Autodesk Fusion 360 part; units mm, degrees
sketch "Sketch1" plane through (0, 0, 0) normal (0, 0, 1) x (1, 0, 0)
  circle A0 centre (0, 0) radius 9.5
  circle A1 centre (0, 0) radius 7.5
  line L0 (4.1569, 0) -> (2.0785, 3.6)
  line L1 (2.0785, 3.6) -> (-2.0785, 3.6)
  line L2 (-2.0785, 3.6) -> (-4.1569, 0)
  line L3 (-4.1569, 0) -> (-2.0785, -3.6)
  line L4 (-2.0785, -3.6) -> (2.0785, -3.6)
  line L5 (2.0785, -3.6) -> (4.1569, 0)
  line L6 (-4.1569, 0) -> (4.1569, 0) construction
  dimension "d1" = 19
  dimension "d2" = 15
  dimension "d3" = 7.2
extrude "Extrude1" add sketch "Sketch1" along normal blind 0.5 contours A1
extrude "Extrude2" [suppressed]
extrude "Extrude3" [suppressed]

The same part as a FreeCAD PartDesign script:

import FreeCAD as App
import Part
import Sketcher

V = App.Vector
Q = App.Units.Quantity


def add_polygon(sketch, points):
    """Adds a closed chain of lines whose ends are joined by coincident constraints."""
    first, n = sketch.GeometryCount, len(points)
    for a, b in zip(points, points[1:] + points[:1]):
        sketch.addGeometry(Part.LineSegment(App.Vector(*a, 0), App.Vector(*b, 0)), False)
    for i in range(n):
        sketch.addConstraint(Sketcher.Constraint("Coincident", first + i, 2, first + (i + 1) % n, 1))

doc = App.newDocument("Part")
params = doc.addObject("Spreadsheet::Sheet", "Params")
for row, (alias, value) in enumerate([
    ("sketch1_diameter", "15 mm"),
    ("pad1_length", "0.5 mm"),
], start=1):
    params.set(f"A{row}", alias)
    params.set(f"B{row}", "=" + value)
    params.setAlias(f"B{row}", alias)

body = doc.addObject("PartDesign::Body", "Body")

# Sketch on XY plane
sketch1 = body.newObject("Sketcher::SketchObject", "Sketch")
sketch1.AttachmentSupport = (doc.getObject("XY_Plane"), [""])
sketch1.MapMode = "FlatFace"
sketch1.addGeometry(Part.Circle(V(0, 0, 0), V(0, 0, 1), 7.5), False)  # 0
add_polygon(sketch1, [(2.0785, 3.6), (4.1569, 0), (2.0785, -3.6), (-2.0785, -3.6), (-4.1569, 0), (-2.0785, 3.6)])  # lines 1-6
sketch1.addConstraint(Sketcher.Constraint("Horizontal", 3))
sketch1.addConstraint(Sketcher.Constraint("Horizontal", 6))
sketch1.addConstraint(Sketcher.Constraint("Coincident", 0, 3, -1, 1))
sketch1.addConstraint(Sketcher.Constraint("Symmetric", 1, 2, 4, 2, -1, 1))
sketch1.addConstraint(Sketcher.Constraint("Symmetric", 2, 2, 5, 2, -1, 1))
sketch1.addConstraint(Sketcher.Constraint("PointOnObject", 1, 2, -1))
sketch1.addConstraint(Sketcher.Constraint("Parallel", 1, 4))
sketch1.addConstraint(Sketcher.Constraint("Vertical", 3, 2, 5, 2))
sketch1.addConstraint(Sketcher.Constraint("Diameter", 0, Q("15 mm")))
sketch1.addConstraint(Sketcher.Constraint("DistanceY", 3, 2, 5, 2, Q("7.2 mm")))
sketch1.addConstraint(Sketcher.Constraint("Angle", 1, Q("-60.0007 deg")))
sketch1.addConstraint(Sketcher.Constraint("DistanceX", 3, 2, 3, 1, Q("4.157 mm")))
sketch1.setExpression("Constraints[14]", "Params.sketch1_diameter")
pad1 = body.newObject("PartDesign::Pad", "Pad")
pad1.Profile = sketch1
pad1.setExpression("Length", "Params.pad1_length")

doc.recompute()
